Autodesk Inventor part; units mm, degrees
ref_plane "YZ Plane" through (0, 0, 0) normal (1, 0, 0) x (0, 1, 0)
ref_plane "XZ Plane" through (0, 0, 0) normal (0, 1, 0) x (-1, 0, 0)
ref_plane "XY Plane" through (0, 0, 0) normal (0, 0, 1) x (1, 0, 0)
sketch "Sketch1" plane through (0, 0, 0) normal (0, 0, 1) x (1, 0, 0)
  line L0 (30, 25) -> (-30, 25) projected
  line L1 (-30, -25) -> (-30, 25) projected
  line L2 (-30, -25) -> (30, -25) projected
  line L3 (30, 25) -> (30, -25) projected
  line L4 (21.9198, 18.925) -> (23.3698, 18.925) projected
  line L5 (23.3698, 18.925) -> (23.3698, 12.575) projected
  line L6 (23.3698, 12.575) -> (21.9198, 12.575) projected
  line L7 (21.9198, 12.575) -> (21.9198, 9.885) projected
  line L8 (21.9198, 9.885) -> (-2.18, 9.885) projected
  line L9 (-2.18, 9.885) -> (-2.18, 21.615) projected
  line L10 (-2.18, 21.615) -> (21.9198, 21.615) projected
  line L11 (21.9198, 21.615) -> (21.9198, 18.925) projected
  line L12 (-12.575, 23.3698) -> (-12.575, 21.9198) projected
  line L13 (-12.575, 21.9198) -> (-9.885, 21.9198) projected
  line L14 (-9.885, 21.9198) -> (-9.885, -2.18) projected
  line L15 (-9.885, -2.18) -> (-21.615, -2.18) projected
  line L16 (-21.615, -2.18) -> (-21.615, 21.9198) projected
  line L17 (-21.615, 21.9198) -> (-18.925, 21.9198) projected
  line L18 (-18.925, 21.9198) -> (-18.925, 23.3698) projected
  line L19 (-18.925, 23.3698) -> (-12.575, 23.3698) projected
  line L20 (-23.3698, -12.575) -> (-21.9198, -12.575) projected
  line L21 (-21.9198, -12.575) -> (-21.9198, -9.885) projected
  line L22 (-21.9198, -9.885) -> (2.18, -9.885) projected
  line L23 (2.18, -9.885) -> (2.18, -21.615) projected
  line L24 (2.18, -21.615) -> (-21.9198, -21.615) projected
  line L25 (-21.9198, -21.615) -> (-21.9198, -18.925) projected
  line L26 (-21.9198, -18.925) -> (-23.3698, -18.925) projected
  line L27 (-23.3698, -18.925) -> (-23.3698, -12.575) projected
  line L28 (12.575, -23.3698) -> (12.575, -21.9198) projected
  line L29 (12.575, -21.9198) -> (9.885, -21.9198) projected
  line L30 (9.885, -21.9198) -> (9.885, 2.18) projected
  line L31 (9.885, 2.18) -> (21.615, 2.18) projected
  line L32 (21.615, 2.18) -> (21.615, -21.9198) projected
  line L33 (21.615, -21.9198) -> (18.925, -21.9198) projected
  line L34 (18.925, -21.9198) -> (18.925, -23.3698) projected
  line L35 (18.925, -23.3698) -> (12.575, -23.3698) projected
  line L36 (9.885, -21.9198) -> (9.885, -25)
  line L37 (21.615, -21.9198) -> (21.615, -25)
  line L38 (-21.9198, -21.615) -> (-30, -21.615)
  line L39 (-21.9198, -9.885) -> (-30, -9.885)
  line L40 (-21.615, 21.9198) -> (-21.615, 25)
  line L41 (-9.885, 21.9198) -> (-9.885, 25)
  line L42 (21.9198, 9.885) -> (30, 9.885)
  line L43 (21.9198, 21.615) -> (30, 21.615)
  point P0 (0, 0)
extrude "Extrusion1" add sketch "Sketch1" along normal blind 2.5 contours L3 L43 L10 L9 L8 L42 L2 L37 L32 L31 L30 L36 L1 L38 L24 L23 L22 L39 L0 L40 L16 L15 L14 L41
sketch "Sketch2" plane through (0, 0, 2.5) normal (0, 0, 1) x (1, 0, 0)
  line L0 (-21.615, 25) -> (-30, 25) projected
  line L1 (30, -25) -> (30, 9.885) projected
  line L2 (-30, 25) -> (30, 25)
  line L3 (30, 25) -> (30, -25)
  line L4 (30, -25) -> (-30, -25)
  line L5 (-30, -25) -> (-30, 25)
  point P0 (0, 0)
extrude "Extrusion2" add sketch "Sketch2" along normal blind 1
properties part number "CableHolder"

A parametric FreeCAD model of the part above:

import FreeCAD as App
import Part
import Sketcher
Q = App.Units.Quantity


def add_polygon(sketch, points):
    """Adds a closed chain of lines whose ends are joined by coincident constraints."""
    first, n = sketch.GeometryCount, len(points)
    for a, b in zip(points, points[1:] + points[:1]):
        sketch.addGeometry(Part.LineSegment(App.Vector(*a, 0), App.Vector(*b, 0)), False)
    for i in range(n):
        sketch.addConstraint(Sketcher.Constraint("Coincident", first + i, 2, first + (i + 1) % n, 1))

doc = App.newDocument("Part")
body = doc.addObject("PartDesign::Body", "Body")

# Sketch on XY plane
sketch1 = doc.addObject("Sketcher::SketchObject", "Sketch")
body.addObject(sketch1)
sketch1.AttachmentSupport = (doc.XY_Plane, [""])
sketch1.MapMode = "FlatFace"
add_polygon(sketch1, [(30, 21.6), (30, 25), (-9.9, 25), (-9.9, -2.2), (-21.6, -2.2), (-21.6, 25), (-30, 25), (-30, -9.9), (2.2, -9.9), (2.2, -21.6), (-30, -21.6), (-30, -25), (9.9, -25), (9.9, 2.2), (21.6, 2.2), (21.6, -25), (30, -25), (30, 9.9), (-2.2, 9.9), (-2.2, 21.6)])  # lines 0-19
sketch1.addConstraint([
    Sketcher.Constraint("Vertical", 0),
    Sketcher.Constraint("Horizontal", 1),
    Sketcher.Constraint("Vertical", 2),
    Sketcher.Constraint("Horizontal", 3),
    Sketcher.Constraint("Vertical", 4),
    Sketcher.Constraint("Horizontal", 5),
    Sketcher.Constraint("Vertical", 6),
    Sketcher.Constraint("Horizontal", 7),
    Sketcher.Constraint("Vertical", 8),
    Sketcher.Constraint("Horizontal", 9),
    Sketcher.Constraint("Vertical", 10),
    Sketcher.Constraint("Horizontal", 11),
    Sketcher.Constraint("Vertical", 12),
    Sketcher.Constraint("Horizontal", 13),
    Sketcher.Constraint("Vertical", 14),
    Sketcher.Constraint("Horizontal", 15),
    Sketcher.Constraint("Vertical", 16),
    Sketcher.Constraint("Horizontal", 17),
    Sketcher.Constraint("Vertical", 18),
    Sketcher.Constraint("Horizontal", 19),
    Sketcher.Constraint("Symmetric", 0, 2, 10, 2, -1, 1),
    Sketcher.Constraint("Symmetric", 2, 2, 12, 2, -1, 1),
    Sketcher.Constraint("Symmetric", 4, 2, 14, 2, -1, 1),
    Sketcher.Constraint("Symmetric", 6, 2, 16, 2, -1, 1),
    Sketcher.Constraint("Symmetric", 8, 2, 18, 2, -1, 1),
    Sketcher.Constraint("Symmetric", 0, 2, 5, 2, -2),
    Sketcher.Constraint("Equal", 13, 8),
    Sketcher.Constraint("DistanceX", -1, 1, 0, 2, Q("30 mm")),
    Sketcher.Constraint("DistanceY", -1, 1, 0, 2, Q("25 mm")),
    Sketcher.Constraint("DistanceX", 3, 2, 3, 1, Q("11.73 mm")),
    Sketcher.Constraint("DistanceX", 7, 1, 7, 2, Q("32.18 mm")),
    Sketcher.Constraint("DistanceY", 2, 2, 2, 1, Q("27.18 mm")),
    Sketcher.Constraint("DistanceX", 3, 2, 11, 2, Q("31.5 mm")),
    Sketcher.Constraint("DistanceY", 0, 1, 0, 2, Q("3.385 mm")),
])
pad1 = doc.addObject("PartDesign::Pad", "Pad")
body.addObject(pad1)
pad1.Profile = sketch1
pad1.Length = 2.5

# Sketch on XY plane
sketch2 = doc.addObject("Sketcher::SketchObject", "Sketch001")
body.addObject(sketch2)
sketch2.AttachmentSupport = (doc.XY_Plane, [""])
sketch2.MapMode = "FlatFace"
sketch2.AttachmentOffset = App.Placement(App.Vector(0, 0, 2.5), App.Rotation())
add_polygon(sketch2, [(30, 25), (-30, 25), (-30, -25), (30, -25)])  # lines 0-3
sketch2.addConstraint([
    Sketcher.Constraint("Horizontal", 0),
    Sketcher.Constraint("Vertical", 1),
    Sketcher.Constraint("Horizontal", 2),
    Sketcher.Constraint("Vertical", 3),
    Sketcher.Constraint("Symmetric", 0, 2, 2, 2, -1, 1),
    Sketcher.Constraint("DistanceX", 0, 2, 0, 1, Q("60 mm")),
    Sketcher.Constraint("DistanceY", 1, 2, 1, 1, Q("50 mm")),
])
pad2 = doc.addObject("PartDesign::Pad", "Pad001")
body.addObject(pad2)
pad2.Profile = sketch2
pad2.Length = 1

doc.recompute()
